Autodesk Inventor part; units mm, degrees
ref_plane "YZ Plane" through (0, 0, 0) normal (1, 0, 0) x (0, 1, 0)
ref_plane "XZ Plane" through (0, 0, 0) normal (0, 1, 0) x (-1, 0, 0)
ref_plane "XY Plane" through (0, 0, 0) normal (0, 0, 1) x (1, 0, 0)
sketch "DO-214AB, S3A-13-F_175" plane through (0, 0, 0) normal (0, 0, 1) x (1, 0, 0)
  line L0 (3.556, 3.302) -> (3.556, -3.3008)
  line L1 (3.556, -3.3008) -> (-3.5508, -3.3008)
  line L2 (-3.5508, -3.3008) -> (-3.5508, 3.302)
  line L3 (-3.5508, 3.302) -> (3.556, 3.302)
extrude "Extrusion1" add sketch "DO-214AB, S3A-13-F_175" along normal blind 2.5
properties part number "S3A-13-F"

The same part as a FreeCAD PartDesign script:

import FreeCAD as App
import Part
import Sketcher

V = App.Vector
Q = App.Units.Quantity


def add_polygon(sketch, points):
    """Adds a closed chain of lines whose ends are joined by coincident constraints."""
    first, n = sketch.GeometryCount, len(points)
    for a, b in zip(points, points[1:] + points[:1]):
        sketch.addGeometry(Part.LineSegment(App.Vector(*a, 0), App.Vector(*b, 0)), False)
    for i in range(n):
        sketch.addConstraint(Sketcher.Constraint("Coincident", first + i, 2, first + (i + 1) % n, 1))

doc = App.newDocument("Part")
params = doc.addObject("Spreadsheet::Sheet", "Params")
for row, (alias, value) in enumerate([
    ("pad1_length", "2.5 mm"),
], start=1):
    params.set(f"A{row}", alias)
    params.set(f"B{row}", "=" + value)
    params.setAlias(f"B{row}", alias)

body = doc.addObject("PartDesign::Body", "Body")

sketch1 = body.newObject("Sketcher::SketchObject", "Sketch")
sketch1.AttachmentSupport = (doc.getObject("XY_Plane"), [""])
sketch1.MapMode = "FlatFace"
add_polygon(sketch1, [(4, -3), (4, 3), (-4, 3), (-4, -3)])
sketch1.addConstraint(Sketcher.Constraint("Vertical", 0))
sketch1.addConstraint(Sketcher.Constraint("Horizontal", 1))
sketch1.addConstraint(Sketcher.Constraint("Vertical", 2))
sketch1.addConstraint(Sketcher.Constraint("Horizontal", 3))
sketch1.addConstraint(Sketcher.Constraint("DistanceX", 1, 2, 1, 1, Q("7.1068 mm")))
sketch1.addConstraint(Sketcher.Constraint("DistanceY", 0, 1, 0, 2, Q("6.6028 mm")))
sketch1.addConstraint(Sketcher.Constraint("DistanceX", -1, 1, 0, 2, Q("3.556 mm")))
sketch1.addConstraint(Sketcher.Constraint("DistanceY", -1, 1, 0, 2, Q("3.302 mm")))
pad1 = body.newObject("PartDesign::Pad", "Pad")
pad1.Profile = sketch1
pad1.setExpression("Length", "Params.pad1_length")

doc.recompute()
